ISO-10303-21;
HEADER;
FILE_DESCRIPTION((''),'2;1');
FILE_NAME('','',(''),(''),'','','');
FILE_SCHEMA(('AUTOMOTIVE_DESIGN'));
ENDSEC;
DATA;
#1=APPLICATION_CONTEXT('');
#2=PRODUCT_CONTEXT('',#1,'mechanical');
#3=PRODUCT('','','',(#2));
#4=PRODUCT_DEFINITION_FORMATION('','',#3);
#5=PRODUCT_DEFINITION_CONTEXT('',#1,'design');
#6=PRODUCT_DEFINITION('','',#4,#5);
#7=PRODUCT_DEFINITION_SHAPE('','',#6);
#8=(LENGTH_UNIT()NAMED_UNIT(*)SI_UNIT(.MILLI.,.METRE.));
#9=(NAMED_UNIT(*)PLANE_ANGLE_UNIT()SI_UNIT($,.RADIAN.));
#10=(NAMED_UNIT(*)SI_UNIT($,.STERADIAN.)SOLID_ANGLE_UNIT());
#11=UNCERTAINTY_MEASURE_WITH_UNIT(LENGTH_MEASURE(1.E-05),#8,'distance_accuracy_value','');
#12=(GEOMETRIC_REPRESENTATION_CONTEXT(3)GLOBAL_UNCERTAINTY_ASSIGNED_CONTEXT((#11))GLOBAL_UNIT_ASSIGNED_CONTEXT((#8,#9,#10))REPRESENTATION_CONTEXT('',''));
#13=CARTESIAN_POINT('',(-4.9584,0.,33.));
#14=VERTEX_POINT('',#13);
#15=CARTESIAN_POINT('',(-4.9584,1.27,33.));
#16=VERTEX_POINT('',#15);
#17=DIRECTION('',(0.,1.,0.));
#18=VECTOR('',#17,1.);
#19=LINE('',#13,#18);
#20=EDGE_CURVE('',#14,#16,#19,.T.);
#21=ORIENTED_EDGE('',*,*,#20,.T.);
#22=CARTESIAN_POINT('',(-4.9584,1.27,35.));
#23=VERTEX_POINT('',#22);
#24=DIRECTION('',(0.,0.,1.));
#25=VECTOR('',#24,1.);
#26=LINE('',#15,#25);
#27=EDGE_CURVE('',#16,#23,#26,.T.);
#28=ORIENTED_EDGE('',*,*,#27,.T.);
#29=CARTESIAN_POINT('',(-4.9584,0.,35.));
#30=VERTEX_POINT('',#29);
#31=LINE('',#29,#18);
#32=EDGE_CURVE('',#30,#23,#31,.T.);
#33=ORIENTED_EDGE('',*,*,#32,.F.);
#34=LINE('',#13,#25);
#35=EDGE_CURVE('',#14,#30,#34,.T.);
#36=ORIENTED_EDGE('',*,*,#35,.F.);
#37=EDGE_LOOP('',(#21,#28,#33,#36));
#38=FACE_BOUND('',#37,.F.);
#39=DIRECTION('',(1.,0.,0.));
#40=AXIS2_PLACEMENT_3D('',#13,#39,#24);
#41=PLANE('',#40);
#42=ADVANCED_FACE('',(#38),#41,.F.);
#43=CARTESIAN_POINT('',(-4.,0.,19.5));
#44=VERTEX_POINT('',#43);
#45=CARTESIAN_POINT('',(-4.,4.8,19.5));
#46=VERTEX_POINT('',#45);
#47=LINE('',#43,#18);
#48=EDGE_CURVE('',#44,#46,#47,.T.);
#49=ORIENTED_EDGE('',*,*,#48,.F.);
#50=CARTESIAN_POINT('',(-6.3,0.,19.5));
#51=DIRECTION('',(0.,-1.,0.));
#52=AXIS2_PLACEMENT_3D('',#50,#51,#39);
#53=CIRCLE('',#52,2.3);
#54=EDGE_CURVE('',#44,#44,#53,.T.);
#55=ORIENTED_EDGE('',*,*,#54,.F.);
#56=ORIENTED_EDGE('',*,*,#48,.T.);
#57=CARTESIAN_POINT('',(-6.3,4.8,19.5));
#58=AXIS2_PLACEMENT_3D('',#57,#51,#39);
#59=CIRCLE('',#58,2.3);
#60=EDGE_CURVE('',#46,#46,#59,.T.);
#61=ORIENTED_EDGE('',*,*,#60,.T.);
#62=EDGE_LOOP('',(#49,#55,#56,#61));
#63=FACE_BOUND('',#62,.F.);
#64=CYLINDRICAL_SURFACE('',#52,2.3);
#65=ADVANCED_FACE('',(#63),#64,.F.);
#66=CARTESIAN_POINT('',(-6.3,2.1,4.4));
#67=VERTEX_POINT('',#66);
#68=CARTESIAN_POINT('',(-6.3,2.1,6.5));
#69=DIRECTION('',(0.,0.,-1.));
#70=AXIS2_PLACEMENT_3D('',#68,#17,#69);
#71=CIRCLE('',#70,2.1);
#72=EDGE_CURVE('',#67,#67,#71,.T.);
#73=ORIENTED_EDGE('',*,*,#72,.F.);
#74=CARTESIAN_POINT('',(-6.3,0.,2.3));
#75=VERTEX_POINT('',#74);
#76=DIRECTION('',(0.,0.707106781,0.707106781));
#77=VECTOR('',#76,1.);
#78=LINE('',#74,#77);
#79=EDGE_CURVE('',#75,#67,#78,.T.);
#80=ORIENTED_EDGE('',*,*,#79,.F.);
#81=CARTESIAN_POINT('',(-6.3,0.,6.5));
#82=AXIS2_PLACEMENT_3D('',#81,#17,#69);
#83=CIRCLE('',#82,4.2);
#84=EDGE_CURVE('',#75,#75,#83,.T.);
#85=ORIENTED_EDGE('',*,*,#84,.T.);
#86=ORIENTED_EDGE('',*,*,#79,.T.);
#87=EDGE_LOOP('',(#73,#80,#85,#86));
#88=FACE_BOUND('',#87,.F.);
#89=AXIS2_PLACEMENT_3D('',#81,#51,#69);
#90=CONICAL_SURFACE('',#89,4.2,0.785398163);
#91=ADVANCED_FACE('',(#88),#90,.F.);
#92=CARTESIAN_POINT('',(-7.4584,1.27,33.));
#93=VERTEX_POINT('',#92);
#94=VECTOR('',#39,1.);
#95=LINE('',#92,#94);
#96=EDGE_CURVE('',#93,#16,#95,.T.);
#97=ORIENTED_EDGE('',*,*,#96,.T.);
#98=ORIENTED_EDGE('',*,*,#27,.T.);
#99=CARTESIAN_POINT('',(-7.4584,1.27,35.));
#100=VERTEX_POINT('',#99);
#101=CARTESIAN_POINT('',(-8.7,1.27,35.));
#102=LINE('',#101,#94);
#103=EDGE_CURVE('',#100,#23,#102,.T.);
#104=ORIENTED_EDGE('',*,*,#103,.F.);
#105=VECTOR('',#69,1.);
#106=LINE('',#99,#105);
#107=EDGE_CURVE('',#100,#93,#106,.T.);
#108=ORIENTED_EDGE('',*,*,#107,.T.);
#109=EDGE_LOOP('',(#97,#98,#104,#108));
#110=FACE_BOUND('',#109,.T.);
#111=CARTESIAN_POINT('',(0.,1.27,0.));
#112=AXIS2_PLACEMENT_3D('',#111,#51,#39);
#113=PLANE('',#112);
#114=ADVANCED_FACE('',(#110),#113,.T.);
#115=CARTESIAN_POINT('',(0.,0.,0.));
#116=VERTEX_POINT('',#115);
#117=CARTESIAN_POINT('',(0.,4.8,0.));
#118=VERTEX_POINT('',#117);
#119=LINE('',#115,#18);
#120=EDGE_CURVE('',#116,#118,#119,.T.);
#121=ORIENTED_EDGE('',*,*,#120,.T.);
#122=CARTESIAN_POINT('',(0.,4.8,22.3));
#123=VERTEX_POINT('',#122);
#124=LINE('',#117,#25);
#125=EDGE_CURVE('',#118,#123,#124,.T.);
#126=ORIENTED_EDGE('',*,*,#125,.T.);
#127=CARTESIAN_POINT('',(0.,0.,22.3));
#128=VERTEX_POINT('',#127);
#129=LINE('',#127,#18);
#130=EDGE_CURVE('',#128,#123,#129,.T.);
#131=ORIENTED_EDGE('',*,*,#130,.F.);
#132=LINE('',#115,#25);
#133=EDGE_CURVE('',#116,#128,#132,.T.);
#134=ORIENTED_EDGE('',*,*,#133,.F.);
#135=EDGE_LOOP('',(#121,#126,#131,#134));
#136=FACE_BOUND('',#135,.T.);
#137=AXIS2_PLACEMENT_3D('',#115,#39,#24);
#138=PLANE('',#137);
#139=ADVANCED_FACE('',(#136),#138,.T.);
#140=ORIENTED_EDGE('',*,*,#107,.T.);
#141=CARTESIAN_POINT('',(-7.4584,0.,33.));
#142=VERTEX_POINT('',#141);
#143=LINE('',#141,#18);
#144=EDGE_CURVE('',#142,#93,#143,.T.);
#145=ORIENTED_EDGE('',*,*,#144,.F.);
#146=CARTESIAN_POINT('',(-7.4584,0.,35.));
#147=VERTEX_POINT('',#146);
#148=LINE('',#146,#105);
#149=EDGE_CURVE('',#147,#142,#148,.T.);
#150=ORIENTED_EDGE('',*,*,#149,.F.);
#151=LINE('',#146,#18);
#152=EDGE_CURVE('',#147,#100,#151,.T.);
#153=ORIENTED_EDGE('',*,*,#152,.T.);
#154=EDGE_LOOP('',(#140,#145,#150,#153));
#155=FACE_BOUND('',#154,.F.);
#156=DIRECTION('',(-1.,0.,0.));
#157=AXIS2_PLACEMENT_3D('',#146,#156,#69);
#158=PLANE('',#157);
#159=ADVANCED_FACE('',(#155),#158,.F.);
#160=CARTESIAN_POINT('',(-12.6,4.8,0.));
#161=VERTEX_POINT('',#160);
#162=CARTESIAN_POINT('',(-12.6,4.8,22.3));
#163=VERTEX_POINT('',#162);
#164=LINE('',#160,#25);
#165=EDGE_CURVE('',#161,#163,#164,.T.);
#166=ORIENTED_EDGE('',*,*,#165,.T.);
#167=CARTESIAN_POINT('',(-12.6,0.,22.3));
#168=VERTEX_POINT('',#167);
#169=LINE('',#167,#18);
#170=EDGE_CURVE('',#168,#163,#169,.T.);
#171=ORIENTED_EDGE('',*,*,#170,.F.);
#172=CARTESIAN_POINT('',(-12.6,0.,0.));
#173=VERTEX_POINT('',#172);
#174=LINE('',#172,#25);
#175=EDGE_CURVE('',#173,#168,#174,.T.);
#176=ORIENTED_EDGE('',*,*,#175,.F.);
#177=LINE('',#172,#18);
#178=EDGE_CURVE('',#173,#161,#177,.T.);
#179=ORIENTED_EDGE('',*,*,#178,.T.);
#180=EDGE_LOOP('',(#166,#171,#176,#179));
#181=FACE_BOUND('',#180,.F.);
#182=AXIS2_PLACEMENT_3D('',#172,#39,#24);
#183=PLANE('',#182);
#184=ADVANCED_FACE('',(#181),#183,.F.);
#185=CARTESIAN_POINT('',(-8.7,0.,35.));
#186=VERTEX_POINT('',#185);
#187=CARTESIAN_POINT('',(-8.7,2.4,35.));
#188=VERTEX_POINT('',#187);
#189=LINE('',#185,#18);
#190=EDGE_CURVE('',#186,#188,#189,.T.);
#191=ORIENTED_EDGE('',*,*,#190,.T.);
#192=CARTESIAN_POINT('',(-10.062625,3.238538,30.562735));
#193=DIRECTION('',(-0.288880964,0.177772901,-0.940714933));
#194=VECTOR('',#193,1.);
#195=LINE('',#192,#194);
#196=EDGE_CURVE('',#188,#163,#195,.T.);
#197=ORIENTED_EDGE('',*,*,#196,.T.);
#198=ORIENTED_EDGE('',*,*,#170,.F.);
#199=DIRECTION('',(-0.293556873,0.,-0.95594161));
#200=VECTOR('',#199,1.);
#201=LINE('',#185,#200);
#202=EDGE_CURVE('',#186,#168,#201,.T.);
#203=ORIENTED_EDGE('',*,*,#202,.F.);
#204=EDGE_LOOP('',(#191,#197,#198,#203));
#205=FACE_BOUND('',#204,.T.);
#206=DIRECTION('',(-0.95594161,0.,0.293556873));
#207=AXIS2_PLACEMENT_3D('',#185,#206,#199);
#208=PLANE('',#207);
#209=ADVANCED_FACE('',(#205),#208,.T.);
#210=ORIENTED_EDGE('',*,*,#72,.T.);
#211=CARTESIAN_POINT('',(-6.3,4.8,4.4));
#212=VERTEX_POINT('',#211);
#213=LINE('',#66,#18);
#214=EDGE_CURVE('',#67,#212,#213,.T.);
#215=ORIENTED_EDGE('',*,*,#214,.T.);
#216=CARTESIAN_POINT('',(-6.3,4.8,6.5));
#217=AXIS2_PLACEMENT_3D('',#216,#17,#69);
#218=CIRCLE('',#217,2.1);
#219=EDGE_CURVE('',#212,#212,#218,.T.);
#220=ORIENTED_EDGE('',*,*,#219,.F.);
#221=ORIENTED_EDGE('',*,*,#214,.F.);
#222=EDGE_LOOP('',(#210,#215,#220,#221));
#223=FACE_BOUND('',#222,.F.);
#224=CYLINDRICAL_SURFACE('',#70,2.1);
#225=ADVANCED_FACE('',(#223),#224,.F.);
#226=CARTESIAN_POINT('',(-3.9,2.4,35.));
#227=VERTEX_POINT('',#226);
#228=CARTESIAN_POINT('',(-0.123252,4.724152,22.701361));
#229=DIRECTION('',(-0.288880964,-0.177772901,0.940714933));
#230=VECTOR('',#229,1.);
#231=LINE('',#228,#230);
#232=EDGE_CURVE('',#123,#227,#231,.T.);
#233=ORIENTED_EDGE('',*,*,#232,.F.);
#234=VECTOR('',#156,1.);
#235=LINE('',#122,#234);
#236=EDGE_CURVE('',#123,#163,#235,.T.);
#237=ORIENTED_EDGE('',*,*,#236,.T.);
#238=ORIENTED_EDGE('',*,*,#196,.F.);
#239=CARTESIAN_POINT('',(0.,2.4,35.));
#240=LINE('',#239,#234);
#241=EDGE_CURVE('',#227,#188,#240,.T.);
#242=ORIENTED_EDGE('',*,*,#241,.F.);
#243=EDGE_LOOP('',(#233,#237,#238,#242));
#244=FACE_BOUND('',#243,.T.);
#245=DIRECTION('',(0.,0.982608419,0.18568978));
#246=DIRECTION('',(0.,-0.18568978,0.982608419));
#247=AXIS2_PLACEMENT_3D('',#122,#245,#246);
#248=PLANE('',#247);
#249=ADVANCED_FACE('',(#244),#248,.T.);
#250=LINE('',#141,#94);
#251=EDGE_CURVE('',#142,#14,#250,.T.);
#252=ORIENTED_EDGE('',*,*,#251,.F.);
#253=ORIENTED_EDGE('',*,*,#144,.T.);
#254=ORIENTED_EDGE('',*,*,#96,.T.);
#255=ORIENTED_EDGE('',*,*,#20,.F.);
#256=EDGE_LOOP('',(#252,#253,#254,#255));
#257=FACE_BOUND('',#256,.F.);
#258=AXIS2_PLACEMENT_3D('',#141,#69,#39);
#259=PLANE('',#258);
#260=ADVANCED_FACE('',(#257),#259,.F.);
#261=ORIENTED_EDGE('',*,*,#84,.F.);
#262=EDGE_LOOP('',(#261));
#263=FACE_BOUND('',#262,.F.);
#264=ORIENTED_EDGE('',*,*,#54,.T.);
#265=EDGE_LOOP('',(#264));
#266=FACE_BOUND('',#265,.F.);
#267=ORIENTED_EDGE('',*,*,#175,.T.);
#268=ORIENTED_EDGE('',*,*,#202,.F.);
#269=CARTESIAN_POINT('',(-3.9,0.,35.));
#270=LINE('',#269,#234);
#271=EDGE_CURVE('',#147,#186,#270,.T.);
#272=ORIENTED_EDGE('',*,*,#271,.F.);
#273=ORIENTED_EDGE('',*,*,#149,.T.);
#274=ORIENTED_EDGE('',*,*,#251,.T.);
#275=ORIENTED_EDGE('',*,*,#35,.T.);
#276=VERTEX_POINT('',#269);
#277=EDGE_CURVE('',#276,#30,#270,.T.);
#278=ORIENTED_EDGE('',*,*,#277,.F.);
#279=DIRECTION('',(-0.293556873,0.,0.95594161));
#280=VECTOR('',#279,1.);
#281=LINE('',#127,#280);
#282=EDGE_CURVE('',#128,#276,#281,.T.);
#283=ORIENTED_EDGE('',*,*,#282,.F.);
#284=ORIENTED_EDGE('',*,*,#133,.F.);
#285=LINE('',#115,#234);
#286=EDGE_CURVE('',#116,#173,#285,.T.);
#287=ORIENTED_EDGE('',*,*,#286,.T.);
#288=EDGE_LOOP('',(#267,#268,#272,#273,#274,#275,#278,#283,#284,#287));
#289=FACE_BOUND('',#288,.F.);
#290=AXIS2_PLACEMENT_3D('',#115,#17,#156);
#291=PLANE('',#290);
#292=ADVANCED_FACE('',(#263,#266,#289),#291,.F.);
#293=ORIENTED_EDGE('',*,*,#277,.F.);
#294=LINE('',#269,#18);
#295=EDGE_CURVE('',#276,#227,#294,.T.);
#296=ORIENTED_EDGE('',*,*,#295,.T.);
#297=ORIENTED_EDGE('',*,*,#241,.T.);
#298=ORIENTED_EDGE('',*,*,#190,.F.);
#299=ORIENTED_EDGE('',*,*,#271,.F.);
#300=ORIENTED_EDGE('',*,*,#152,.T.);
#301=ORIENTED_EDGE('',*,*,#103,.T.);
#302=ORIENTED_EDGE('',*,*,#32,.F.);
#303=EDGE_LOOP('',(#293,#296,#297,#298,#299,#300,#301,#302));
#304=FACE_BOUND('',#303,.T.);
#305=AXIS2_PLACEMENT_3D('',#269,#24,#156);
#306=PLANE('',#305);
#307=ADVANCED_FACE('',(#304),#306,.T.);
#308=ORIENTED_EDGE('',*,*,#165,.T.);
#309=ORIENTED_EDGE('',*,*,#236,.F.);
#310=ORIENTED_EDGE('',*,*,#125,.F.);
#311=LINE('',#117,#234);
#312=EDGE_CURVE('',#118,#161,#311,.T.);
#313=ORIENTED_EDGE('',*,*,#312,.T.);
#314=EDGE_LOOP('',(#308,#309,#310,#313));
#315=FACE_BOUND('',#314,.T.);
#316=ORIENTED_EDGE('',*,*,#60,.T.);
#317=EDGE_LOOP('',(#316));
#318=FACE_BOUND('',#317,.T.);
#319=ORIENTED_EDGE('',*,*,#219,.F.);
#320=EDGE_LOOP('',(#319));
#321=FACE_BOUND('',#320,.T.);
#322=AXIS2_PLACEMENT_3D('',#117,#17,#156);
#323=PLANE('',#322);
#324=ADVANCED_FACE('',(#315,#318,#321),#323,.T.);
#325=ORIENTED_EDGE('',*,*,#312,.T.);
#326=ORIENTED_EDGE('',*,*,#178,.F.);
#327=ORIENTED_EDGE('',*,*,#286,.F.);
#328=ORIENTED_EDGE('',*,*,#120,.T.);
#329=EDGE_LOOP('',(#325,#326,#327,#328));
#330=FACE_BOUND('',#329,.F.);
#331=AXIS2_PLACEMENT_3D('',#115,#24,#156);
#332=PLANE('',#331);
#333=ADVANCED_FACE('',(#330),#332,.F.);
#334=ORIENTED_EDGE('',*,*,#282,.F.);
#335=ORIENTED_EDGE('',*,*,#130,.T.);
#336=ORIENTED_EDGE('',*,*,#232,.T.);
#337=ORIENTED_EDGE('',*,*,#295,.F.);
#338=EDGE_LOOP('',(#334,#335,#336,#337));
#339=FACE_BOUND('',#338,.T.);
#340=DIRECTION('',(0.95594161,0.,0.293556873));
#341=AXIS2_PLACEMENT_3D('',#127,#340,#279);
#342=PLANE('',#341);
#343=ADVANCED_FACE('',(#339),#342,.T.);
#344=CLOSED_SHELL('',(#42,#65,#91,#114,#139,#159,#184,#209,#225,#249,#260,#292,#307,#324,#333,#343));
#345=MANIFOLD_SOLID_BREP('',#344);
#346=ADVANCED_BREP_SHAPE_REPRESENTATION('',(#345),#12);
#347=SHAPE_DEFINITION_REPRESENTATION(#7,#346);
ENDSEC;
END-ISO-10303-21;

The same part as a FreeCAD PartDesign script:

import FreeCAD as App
import Part
import Sketcher

V = App.Vector

doc = App.newDocument("Part")
body = doc.addObject("PartDesign::Body", "Body")

sketch1 = doc.addObject("Sketcher::SketchObject", "Sketch")
body.addObject(sketch1)
sketch1.AttachmentSupport = (doc.XZ_Plane, [""])
sketch1.MapMode = "FlatFace"
sketch1.addGeometry([
    Part.LineSegment(V(0, 22.3, 0), V(0, 0, 0)),
    Part.LineSegment(V(0, 0, 0), V(-12.6, 0, 0)),
    Part.LineSegment(V(-12.6, 0, 0), V(-12.6, 22.3, 0)),
    Part.LineSegment(V(-12.6, 22.3, 0), V(-8.7, 35, 0)),
    Part.LineSegment(V(-8.7, 35, 0), V(-3.9, 35, 0)),
    Part.LineSegment(V(-3.9, 35, 0), V(0, 22.3, 0)),
], False)
sketch1.addConstraint([
    Sketcher.Constraint("Coincident", 0, 2, 1, 1),
    Sketcher.Constraint("Coincident", 1, 2, 2, 1),
    Sketcher.Constraint("Coincident", 2, 2, 3, 1),
    Sketcher.Constraint("Coincident", 3, 2, 4, 1),
    Sketcher.Constraint("Coincident", 4, 2, 5, 1),
    Sketcher.Constraint("Coincident", 5, 2, 0, 1),
    Sketcher.Constraint("Vertical", 0),
    Sketcher.Constraint("Horizontal", 1),
    Sketcher.Constraint("Vertical", 2),
    Sketcher.Constraint("Horizontal", 4),
    Sketcher.Constraint("Coincident", 0, 2, -1, 1),
    Sketcher.Constraint("Horizontal", 2, 2, 5, 2),
    Sketcher.Constraint("Equal", 3, 5),
    Sketcher.Constraint("DistanceX", 4, 1, 4, 2, 4.8),
    Sketcher.Constraint("DistanceY", 0, 2, 0, 1, 22.3),
    Sketcher.Constraint("DistanceX", 1, 2, 1, 1, 12.6),
    Sketcher.Constraint("DistanceY", -1, 1, 3, 2, 35.0),
])
pad1 = doc.addObject("PartDesign::Pad", "Pad")
body.addObject(pad1)
pad1.Profile = sketch1
pad1.Length = 4.8
pad1.Reversed = True

sketch2 = doc.addObject("Sketcher::SketchObject", "Sketch001")
body.addObject(sketch2)
sketch2.AttachmentSupport = (doc.XZ_Plane, [""])
sketch2.MapMode = "FlatFace"
sketch2.addGeometry(Part.Circle(V(-6.3, 6.5, 0), V(0, 0, 1), 2.1), False)
sketch2.addConstraint([
    Sketcher.Constraint("Diameter", 0, 4.2),
    Sketcher.Constraint("DistanceX", 0, 3, -1, 1, 6.3),
    Sketcher.Constraint("DistanceY", -1, 1, 0, 3, 6.5),
])
doc.recompute()
hole = doc.addObject("PartDesign::Hole", "Hole")
body.addObject(hole)
hole.Profile = sketch2
hole.ThreadType = "None"
hole.Diameter = 4.2
hole.DepthType = "Dimension"
hole.Depth = 8
hole.DrillPoint = "Angled"
hole.DrillPointAngle = 118
hole.HoleCutType = "Countersink"
hole.HoleCutDiameter = 8.4
hole.HoleCutCountersinkAngle = 90

sketch3 = doc.addObject("Sketcher::SketchObject", "Sketch002")
body.addObject(sketch3)
sketch3.AttachmentSupport = (doc.XZ_Plane, [""])
sketch3.MapMode = "FlatFace"
sketch3.addGeometry(Part.Circle(V(-6.3, 19.5, 0), V(0, 0, 1), 2.3), False)
sketch3.addConstraint([
    Sketcher.Constraint("Diameter", 0, 4.6),
    Sketcher.Constraint("DistanceX", 0, 3, -1, 1, 6.3),
    Sketcher.Constraint("DistanceY", -1, 1, 0, 3, 19.5),
])
pocket1 = doc.addObject("PartDesign::Pocket", "Pocket")
body.addObject(pocket1)
pocket1.Profile = sketch3
pocket1.Type = "ThroughAll"

sketch4 = doc.addObject("Sketcher::SketchObject", "Sketch003")
body.addObject(sketch4)
sketch4.AttachmentSupport = (doc.YZ_Plane, [""])
sketch4.MapMode = "FlatFace"
sketch4.addGeometry([
    Part.LineSegment(V(4.8, 35, 0), V(2.4, 35, 0)),
    Part.LineSegment(V(2.4, 35, 0), V(4.8, 22.3, 0)),
    Part.LineSegment(V(4.8, 22.3, 0), V(4.8, 35, 0)),
], False)
sketch4.addConstraint([
    Sketcher.Constraint("Coincident", 0, 2, 1, 1),
    Sketcher.Constraint("Coincident", 1, 2, 2, 1),
    Sketcher.Constraint("Coincident", 2, 2, 0, 1),
    Sketcher.Constraint("Horizontal", 0),
    Sketcher.Constraint("Vertical", 2),
    Sketcher.Constraint("DistanceX", 0, 2, 0, 1, 2.4),
    Sketcher.Constraint("DistanceY", 2, 1, 2, 2, 12.7),
    Sketcher.Constraint("DistanceY", -1, 1, 0, 2, 35.0),
    Sketcher.Constraint("DistanceX", -1, 1, 0, 2, 2.4),
])
pocket2 = doc.addObject("PartDesign::Pocket", "Pocket001")
body.addObject(pocket2)
pocket2.Profile = sketch4
pocket2.Type = "ThroughAll"

sketch5 = doc.addObject("Sketcher::SketchObject", "Sketch004")
body.addObject(sketch5)
sketch5.AttachmentSupport = (doc.XZ_Plane, [""])
sketch5.MapMode = "FlatFace"
sketch5.addGeometry([
    Part.LineSegment(V(-4.9584, 35, 0), V(-7.4584, 35, 0)),
    Part.LineSegment(V(-7.4584, 35, 0), V(-7.4584, 33, 0)),
    Part.LineSegment(V(-7.4584, 33, 0), V(-4.9584, 33, 0)),
    Part.LineSegment(V(-4.9584, 33, 0), V(-4.9584, 35, 0)),
], False)
sketch5.addConstraint([
    Sketcher.Constraint("Coincident", 0, 2, 1, 1),
    Sketcher.Constraint("Coincident", 1, 2, 2, 1),
    Sketcher.Constraint("Coincident", 2, 2, 3, 1),
    Sketcher.Constraint("Coincident", 3, 2, 0, 1),
    Sketcher.Constraint("Horizontal", 0),
    Sketcher.Constraint("Vertical", 1),
    Sketcher.Constraint("Horizontal", 2),
    Sketcher.Constraint("Vertical", 3),
    Sketcher.Constraint("DistanceY", 1, 2, 1, 1, 2.0),
    Sketcher.Constraint("DistanceX", 0, 2, 0, 1, 2.5),
    Sketcher.Constraint("DistanceY", -1, 1, 0, 2, 35.0),
    Sketcher.Constraint("DistanceX", 0, 2, -1, 1, 7.4584),
])
pocket3 = doc.addObject("PartDesign::Pocket", "Pocket002")
body.addObject(pocket3)
pocket3.Profile = sketch5
pocket3.Length = 1.27

doc.recompute()
